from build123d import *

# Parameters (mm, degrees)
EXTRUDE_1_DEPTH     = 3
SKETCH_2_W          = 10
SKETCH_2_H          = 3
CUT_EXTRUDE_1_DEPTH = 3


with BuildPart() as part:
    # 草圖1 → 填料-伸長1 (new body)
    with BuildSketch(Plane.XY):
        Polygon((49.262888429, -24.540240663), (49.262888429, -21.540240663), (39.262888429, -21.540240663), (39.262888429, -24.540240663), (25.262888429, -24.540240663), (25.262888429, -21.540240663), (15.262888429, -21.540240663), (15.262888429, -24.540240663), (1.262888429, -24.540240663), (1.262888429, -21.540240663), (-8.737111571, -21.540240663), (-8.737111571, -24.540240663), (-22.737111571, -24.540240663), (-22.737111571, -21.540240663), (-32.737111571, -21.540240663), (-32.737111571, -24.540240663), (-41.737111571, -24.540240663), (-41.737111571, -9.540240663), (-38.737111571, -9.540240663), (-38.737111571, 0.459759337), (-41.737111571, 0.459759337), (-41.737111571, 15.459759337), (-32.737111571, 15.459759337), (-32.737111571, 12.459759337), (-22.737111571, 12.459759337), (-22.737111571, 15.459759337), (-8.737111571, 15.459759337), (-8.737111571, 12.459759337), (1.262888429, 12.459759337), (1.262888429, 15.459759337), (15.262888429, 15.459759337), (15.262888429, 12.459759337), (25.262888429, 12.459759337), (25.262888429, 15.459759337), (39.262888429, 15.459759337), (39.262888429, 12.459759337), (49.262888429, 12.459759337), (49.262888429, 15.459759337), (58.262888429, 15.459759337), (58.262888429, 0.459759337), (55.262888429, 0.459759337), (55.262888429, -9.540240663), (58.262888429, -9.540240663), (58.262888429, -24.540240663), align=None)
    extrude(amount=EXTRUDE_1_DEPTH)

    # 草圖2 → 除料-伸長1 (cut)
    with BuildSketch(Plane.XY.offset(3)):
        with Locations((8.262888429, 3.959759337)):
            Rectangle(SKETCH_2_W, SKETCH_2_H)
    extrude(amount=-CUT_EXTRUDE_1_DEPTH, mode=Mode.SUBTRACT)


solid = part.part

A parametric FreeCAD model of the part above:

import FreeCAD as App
import Part
import Sketcher
from FreeCAD import Vector

doc = App.newDocument("Part")
body = doc.addObject("PartDesign::Body", "Body")

sketch1 = body.newObject("Sketcher::SketchObject", "Sketch")
sketch1.AttachmentSupport = (doc.getObject("XY_Plane"), [""])
sketch1.MapMode = "FlatFace"
sketch1.addGeometry(Part.LineSegment(Vector(49.3, -21.5, 0), Vector(49.3, -24.5, 0)), False)
sketch1.addGeometry(Part.LineSegment(Vector(49.3, -24.5, 0), Vector(58.3, -24.5, 0)), False)
sketch1.addGeometry(Part.LineSegment(Vector(58.3, -24.5, 0), Vector(58.3, -9.5, 0)), False)
sketch1.addGeometry(Part.LineSegment(Vector(58.3, -9.5, 0), Vector(55.3, -9.5, 0)), False)
sketch1.addGeometry(Part.LineSegment(Vector(55.3, -9.5, 0), Vector(55.3, 0.5, 0)), False)
sketch1.addGeometry(Part.LineSegment(Vector(55.3, 0.5, 0), Vector(58.3, 0.5, 0)), False)
sketch1.addGeometry(Part.LineSegment(Vector(58.3, 0.5, 0), Vector(58.3, 15.5, 0)), False)
sketch1.addGeometry(Part.LineSegment(Vector(58.3, 15.5, 0), Vector(49.3, 15.5, 0)), False)
sketch1.addGeometry(Part.LineSegment(Vector(49.3, 15.5, 0), Vector(49.3, 12.5, 0)), False)
sketch1.addGeometry(Part.LineSegment(Vector(49.3, 12.5, 0), Vector(39.3, 12.5, 0)), False)
sketch1.addGeometry(Part.LineSegment(Vector(39.3, 12.5, 0), Vector(39.3, 15.5, 0)), False)
sketch1.addGeometry(Part.LineSegment(Vector(39.3, 15.5, 0), Vector(25.3, 15.5, 0)), False)
sketch1.addGeometry(Part.LineSegment(Vector(25.3, 15.5, 0), Vector(25.3, 12.5, 0)), False)
sketch1.addGeometry(Part.LineSegment(Vector(25.3, 12.5, 0), Vector(15.3, 12.5, 0)), False)
sketch1.addGeometry(Part.LineSegment(Vector(15.3, 12.5, 0), Vector(15.3, 15.5, 0)), False)
sketch1.addGeometry(Part.LineSegment(Vector(15.3, 15.5, 0), Vector(1.3, 15.5, 0)), False)
sketch1.addGeometry(Part.LineSegment(Vector(1.3, 15.5, 0), Vector(1.3, 12.5, 0)), False)
sketch1.addGeometry(Part.LineSegment(Vector(1.3, 12.5, 0), Vector(-8.7, 12.5, 0)), False)
sketch1.addGeometry(Part.LineSegment(Vector(-8.7, 12.5, 0), Vector(-8.7, 15.5, 0)), False)
sketch1.addGeometry(Part.LineSegment(Vector(-8.7, 15.5, 0), Vector(-22.7, 15.5, 0)), False)
sketch1.addGeometry(Part.LineSegment(Vector(-22.7, 15.5, 0), Vector(-22.7, 12.5, 0)), False)
sketch1.addGeometry(Part.LineSegment(Vector(-22.7, 12.5, 0), Vector(-32.7, 12.5, 0)), False)
sketch1.addGeometry(Part.LineSegment(Vector(-32.7, 12.5, 0), Vector(-32.7, 15.5, 0)), False)
sketch1.addGeometry(Part.LineSegment(Vector(-32.7, 15.5, 0), Vector(-41.7, 15.5, 0)), False)
sketch1.addGeometry(Part.LineSegment(Vector(-41.7, 15.5, 0), Vector(-41.7, 0.5, 0)), False)
sketch1.addGeometry(Part.LineSegment(Vector(-41.7, 0.5, 0), Vector(-38.7, 0.5, 0)), False)
sketch1.addGeometry(Part.LineSegment(Vector(-38.7, 0.5, 0), Vector(-38.7, -9.5, 0)), False)
sketch1.addGeometry(Part.LineSegment(Vector(-38.7, -9.5, 0), Vector(-41.7, -9.5, 0)), False)
sketch1.addGeometry(Part.LineSegment(Vector(-41.7, -9.5, 0), Vector(-41.7, -24.5, 0)), False)
sketch1.addGeometry(Part.LineSegment(Vector(-41.7, -24.5, 0), Vector(-32.7, -24.5, 0)), False)
sketch1.addGeometry(Part.LineSegment(Vector(-32.7, -24.5, 0), Vector(-32.7, -21.5, 0)), False)
sketch1.addGeometry(Part.LineSegment(Vector(-32.7, -21.5, 0), Vector(-22.7, -21.5, 0)), False)
sketch1.addGeometry(Part.LineSegment(Vector(-22.7, -21.5, 0), Vector(-22.7, -24.5, 0)), False)
sketch1.addGeometry(Part.LineSegment(Vector(-22.7, -24.5, 0), Vector(-8.7, -24.5, 0)), False)
sketch1.addGeometry(Part.LineSegment(Vector(-8.7, -24.5, 0), Vector(-8.7, -21.5, 0)), False)
sketch1.addGeometry(Part.LineSegment(Vector(-8.7, -21.5, 0), Vector(1.3, -21.5, 0)), False)
sketch1.addGeometry(Part.LineSegment(Vector(1.3, -21.5, 0), Vector(1.3, -24.5, 0)), False)
sketch1.addGeometry(Part.LineSegment(Vector(1.3, -24.5, 0), Vector(15.3, -24.5, 0)), False)
sketch1.addGeometry(Part.LineSegment(Vector(15.3, -24.5, 0), Vector(15.3, -21.5, 0)), False)
sketch1.addGeometry(Part.LineSegment(Vector(15.3, -21.5, 0), Vector(25.3, -21.5, 0)), False)
sketch1.addGeometry(Part.LineSegment(Vector(25.3, -21.5, 0), Vector(25.3, -24.5, 0)), False)
sketch1.addGeometry(Part.LineSegment(Vector(25.3, -24.5, 0), Vector(39.3, -24.5, 0)), False)
sketch1.addGeometry(Part.LineSegment(Vector(39.3, -24.5, 0), Vector(39.3, -21.5, 0)), False)
sketch1.addGeometry(Part.LineSegment(Vector(39.3, -21.5, 0), Vector(49.3, -21.5, 0)), False)
sketch1.addConstraint(Sketcher.Constraint("Coincident", 0, 2, 1, 1))
sketch1.addConstraint(Sketcher.Constraint("Coincident", 1, 2, 2, 1))
sketch1.addConstraint(Sketcher.Constraint("Coincident", 2, 2, 3, 1))
sketch1.addConstraint(Sketcher.Constraint("Coincident", 3, 2, 4, 1))
sketch1.addConstraint(Sketcher.Constraint("Coincident", 4, 2, 5, 1))
sketch1.addConstraint(Sketcher.Constraint("Coincident", 5, 2, 6, 1))
sketch1.addConstraint(Sketcher.Constraint("Coincident", 6, 2, 7, 1))
sketch1.addConstraint(Sketcher.Constraint("Coincident", 7, 2, 8, 1))
sketch1.addConstraint(Sketcher.Constraint("Coincident", 8, 2, 9, 1))
sketch1.addConstraint(Sketcher.Constraint("Coincident", 9, 2, 10, 1))
sketch1.addConstraint(Sketcher.Constraint("Coincident", 10, 2, 11, 1))
sketch1.addConstraint(Sketcher.Constraint("Coincident", 11, 2, 12, 1))
sketch1.addConstraint(Sketcher.Constraint("Coincident", 12, 2, 13, 1))
sketch1.addConstraint(Sketcher.Constraint("Coincident", 13, 2, 14, 1))
sketch1.addConstraint(Sketcher.Constraint("Coincident", 14, 2, 15, 1))
sketch1.addConstraint(Sketcher.Constraint("Coincident", 15, 2, 16, 1))
sketch1.addConstraint(Sketcher.Constraint("Coincident", 16, 2, 17, 1))
sketch1.addConstraint(Sketcher.Constraint("Coincident", 17, 2, 18, 1))
sketch1.addConstraint(Sketcher.Constraint("Coincident", 18, 2, 19, 1))
sketch1.addConstraint(Sketcher.Constraint("Coincident", 19, 2, 20, 1))
sketch1.addConstraint(Sketcher.Constraint("Coincident", 20, 2, 21, 1))
sketch1.addConstraint(Sketcher.Constraint("Coincident", 21, 2, 22, 1))
sketch1.addConstraint(Sketcher.Constraint("Coincident", 22, 2, 23, 1))
sketch1.addConstraint(Sketcher.Constraint("Coincident", 23, 2, 24, 1))
sketch1.addConstraint(Sketcher.Constraint("Coincident", 24, 2, 25, 1))
sketch1.addConstraint(Sketcher.Constraint("Coincident", 25, 2, 26, 1))
sketch1.addConstraint(Sketcher.Constraint("Coincident", 26, 2, 27, 1))
sketch1.addConstraint(Sketcher.Constraint("Coincident", 27, 2, 28, 1))
sketch1.addConstraint(Sketcher.Constraint("Coincident", 28, 2, 29, 1))
sketch1.addConstraint(Sketcher.Constraint("Coincident", 29, 2, 30, 1))
sketch1.addConstraint(Sketcher.Constraint("Coincident", 30, 2, 31, 1))
sketch1.addConstraint(Sketcher.Constraint("Coincident", 31, 2, 32, 1))
sketch1.addConstraint(Sketcher.Constraint("Coincident", 32, 2, 33, 1))
sketch1.addConstraint(Sketcher.Constraint("Coincident", 33, 2, 34, 1))
sketch1.addConstraint(Sketcher.Constraint("Coincident", 34, 2, 35, 1))
sketch1.addConstraint(Sketcher.Constraint("Coincident", 35, 2, 36, 1))
sketch1.addConstraint(Sketcher.Constraint("Coincident", 36, 2, 37, 1))
sketch1.addConstraint(Sketcher.Constraint("Coincident", 37, 2, 38, 1))
sketch1.addConstraint(Sketcher.Constraint("Coincident", 38, 2, 39, 1))
sketch1.addConstraint(Sketcher.Constraint("Coincident", 39, 2, 40, 1))
sketch1.addConstraint(Sketcher.Constraint("Coincident", 40, 2, 41, 1))
sketch1.addConstraint(Sketcher.Constraint("Coincident", 41, 2, 42, 1))
sketch1.addConstraint(Sketcher.Constraint("Coincident", 42, 2, 43, 1))
sketch1.addConstraint(Sketcher.Constraint("Coincident", 43, 2, 0, 1))
sketch1.addConstraint(Sketcher.Constraint("Vertical", 0))
sketch1.addConstraint(Sketcher.Constraint("Horizontal", 1))
sketch1.addConstraint(Sketcher.Constraint("Vertical", 2))
sketch1.addConstraint(Sketcher.Constraint("Horizontal", 3))
sketch1.addConstraint(Sketcher.Constraint("Vertical", 4))
sketch1.addConstraint(Sketcher.Constraint("Horizontal", 5))
sketch1.addConstraint(Sketcher.Constraint("Vertical", 6))
sketch1.addConstraint(Sketcher.Constraint("Horizontal", 7))
sketch1.addConstraint(Sketcher.Constraint("Vertical", 8))
sketch1.addConstraint(Sketcher.Constraint("Horizontal", 9))
sketch1.addConstraint(Sketcher.Constraint("Vertical", 10))
sketch1.addConstraint(Sketcher.Constraint("Horizontal", 11))
sketch1.addConstraint(Sketcher.Constraint("Vertical", 12))
sketch1.addConstraint(Sketcher.Constraint("Horizontal", 13))
sketch1.addConstraint(Sketcher.Constraint("Vertical", 14))
sketch1.addConstraint(Sketcher.Constraint("Horizontal", 15))
sketch1.addConstraint(Sketcher.Constraint("Vertical", 16))
sketch1.addConstraint(Sketcher.Constraint("Horizontal", 17))
sketch1.addConstraint(Sketcher.Constraint("Vertical", 18))
sketch1.addConstraint(Sketcher.Constraint("Horizontal", 19))
sketch1.addConstraint(Sketcher.Constraint("Vertical", 20))
sketch1.addConstraint(Sketcher.Constraint("Horizontal", 21))
sketch1.addConstraint(Sketcher.Constraint("Vertical", 22))
sketch1.addConstraint(Sketcher.Constraint("Horizontal", 23))
sketch1.addConstraint(Sketcher.Constraint("Vertical", 24))
sketch1.addConstraint(Sketcher.Constraint("Horizontal", 25))
sketch1.addConstraint(Sketcher.Constraint("Vertical", 26))
sketch1.addConstraint(Sketcher.Constraint("Horizontal", 27))
sketch1.addConstraint(Sketcher.Constraint("Vertical", 28))
sketch1.addConstraint(Sketcher.Constraint("Horizontal", 29))
sketch1.addConstraint(Sketcher.Constraint("Vertical", 30))
sketch1.addConstraint(Sketcher.Constraint("Horizontal", 31))
sketch1.addConstraint(Sketcher.Constraint("Vertical", 32))
sketch1.addConstraint(Sketcher.Constraint("Horizontal", 33))
sketch1.addConstraint(Sketcher.Constraint("Vertical", 34))
sketch1.addConstraint(Sketcher.Constraint("Horizontal", 35))
sketch1.addConstraint(Sketcher.Constraint("Vertical", 36))
sketch1.addConstraint(Sketcher.Constraint("Horizontal", 37))
sketch1.addConstraint(Sketcher.Constraint("Vertical", 38))
sketch1.addConstraint(Sketcher.Constraint("Horizontal", 39))
sketch1.addConstraint(Sketcher.Constraint("Vertical", 40))
sketch1.addConstraint(Sketcher.Constraint("Horizontal", 41))
sketch1.addConstraint(Sketcher.Constraint("Vertical", 42))
sketch1.addConstraint(Sketcher.Constraint("Horizontal", 43))
sketch1.addConstraint(Sketcher.Constraint("Horizontal", 7, 2, 10, 2))
sketch1.addConstraint(Sketcher.Constraint("Horizontal", 9, 2, 12, 2))
sketch1.addConstraint(Sketcher.Constraint("Horizontal", 11, 2, 14, 2))
sketch1.addConstraint(Sketcher.Constraint("Horizontal", 13, 2, 16, 2))
sketch1.addConstraint(Sketcher.Constraint("Horizontal", 15, 2, 18, 2))
sketch1.addConstraint(Sketcher.Constraint("Horizontal", 17, 2, 20, 2))
sketch1.addConstraint(Sketcher.Constraint("Horizontal", 19, 2, 22, 2))
sketch1.addConstraint(Sketcher.Constraint("Horizontal", 5, 2, 24, 2))
sketch1.addConstraint(Sketcher.Constraint("Horizontal", 3, 2, 26, 2))
sketch1.addConstraint(Sketcher.Constraint("Horizontal", 1, 2, 28, 2))
sketch1.addConstraint(Sketcher.Constraint("Horizontal", 29, 2, 32, 2))
sketch1.addConstraint(Sketcher.Constraint("Horizontal", 31, 2, 34, 2))
sketch1.addConstraint(Sketcher.Constraint("Horizontal", 33, 2, 36, 2))
sketch1.addConstraint(Sketcher.Constraint("Horizontal", 35, 2, 38, 2))
sketch1.addConstraint(Sketcher.Constraint("Horizontal", 37, 2, 40, 2))
sketch1.addConstraint(Sketcher.Constraint("Horizontal", 39, 2, 42, 2))
sketch1.addConstraint(Sketcher.Constraint("Vertical", 2, 2, 5, 2))
sketch1.addConstraint(Sketcher.Constraint("Vertical", 0, 2, 7, 2))
sketch1.addConstraint(Sketcher.Constraint("Vertical", 24, 2, 27, 2))
sketch1.addConstraint(Sketcher.Constraint("Vertical", 22, 2, 29, 2))
sketch1.addConstraint(Sketcher.Constraint("Vertical", 20, 2, 31, 2))
sketch1.addConstraint(Sketcher.Constraint("Vertical", 18, 2, 33, 2))
sketch1.addConstraint(Sketcher.Constraint("Vertical", 16, 2, 35, 2))
sketch1.addConstraint(Sketcher.Constraint("Vertical", 14, 2, 37, 2))
sketch1.addConstraint(Sketcher.Constraint("Vertical", 12, 2, 39, 2))
sketch1.addConstraint(Sketcher.Constraint("Vertical", 10, 2, 41, 2))
sketch1.addConstraint(Sketcher.Constraint("Equal", 9, 13))
sketch1.addConstraint(Sketcher.Constraint("Equal", 11, 15))
sketch1.addConstraint(Sketcher.Constraint("Equal", 13, 17))
sketch1.addConstraint(Sketcher.Constraint("Equal", 15, 19))
sketch1.addConstraint(Sketcher.Constraint("Equal", 17, 21))
sketch1.addConstraint(Sketcher.Constraint("Equal", 7, 23))
sketch1.addConstraint(Sketcher.Constraint("Equal", 5, 25))
sketch1.addConstraint(Sketcher.Constraint("Equal", 27, 0))
sketch1.addConstraint(Sketcher.Constraint("Equal", 43, 4))
sketch1.addConstraint(Sketcher.Constraint("Equal", 2, 6))
sketch1.addConstraint(Sketcher.Constraint("Equal", 0, 8))
sketch1.addConstraint(Sketcher.Constraint("DistanceX", 1, 1, 1, 2, 9.0))
sketch1.addConstraint(Sketcher.Constraint("DistanceX", 3, 2, 3, 1, 3.0))
sketch1.addConstraint(Sketcher.Constraint("DistanceX", 9, 2, 9, 1, 10.0))
sketch1.addConstraint(Sketcher.Constraint("DistanceX", 11, 2, 11, 1, 14.0))
sketch1.addConstraint(Sketcher.Constraint("DistanceY", 2, 1, 2, 2, 15.0))
sketch1.addConstraint(Sketcher.Constraint("DistanceX", -1, 1, 0, 2, 49.262888))
sketch1.addConstraint(Sketcher.Constraint("DistanceY", 0, 2, -1, 1, 24.540241))
pad1 = body.newObject("PartDesign::Pad", "Pad")
pad1.Profile = sketch1
pad1.Length = 3

sketch2 = body.newObject("Sketcher::SketchObject", "Sketch001")
sketch2.AttachmentSupport = (doc.getObject("XY_Plane"), [""])
sketch2.MapMode = "FlatFace"
sketch2.AttachmentOffset = App.Placement(Vector(0, 0, 3), App.Rotation())
sketch2.addGeometry(Part.LineSegment(Vector(3.3, 5.5, 0), Vector(3.3, 2.5, 0)), False)
sketch2.addGeometry(Part.LineSegment(Vector(3.3, 2.5, 0), Vector(13.3, 2.5, 0)), False)
sketch2.addGeometry(Part.LineSegment(Vector(13.3, 2.5, 0), Vector(13.3, 5.5, 0)), False)
sketch2.addGeometry(Part.LineSegment(Vector(13.3, 5.5, 0), Vector(3.3, 5.5, 0)), False)
sketch2.addConstraint(Sketcher.Constraint("Coincident", 0, 2, 1, 1))
sketch2.addConstraint(Sketcher.Constraint("Coincident", 1, 2, 2, 1))
sketch2.addConstraint(Sketcher.Constraint("Coincident", 2, 2, 3, 1))
sketch2.addConstraint(Sketcher.Constraint("Coincident", 3, 2, 0, 1))
sketch2.addConstraint(Sketcher.Constraint("Vertical", 0))
sketch2.addConstraint(Sketcher.Constraint("Horizontal", 1))
sketch2.addConstraint(Sketcher.Constraint("Vertical", 2))
sketch2.addConstraint(Sketcher.Constraint("Horizontal", 3))
sketch2.addConstraint(Sketcher.Constraint("DistanceX", 1, 1, 1, 2, 10.0))
sketch2.addConstraint(Sketcher.Constraint("DistanceY", 0, 2, 0, 1, 3.0))
sketch2.addConstraint(Sketcher.Constraint("DistanceX", -1, 1, 0, 2, 3.262888))
sketch2.addConstraint(Sketcher.Constraint("DistanceY", -1, 1, 0, 2, 2.459759))
pocket1 = body.newObject("PartDesign::Pocket", "Pocket")
pocket1.Profile = sketch2
pocket1.Length = 3

doc.recompute()
